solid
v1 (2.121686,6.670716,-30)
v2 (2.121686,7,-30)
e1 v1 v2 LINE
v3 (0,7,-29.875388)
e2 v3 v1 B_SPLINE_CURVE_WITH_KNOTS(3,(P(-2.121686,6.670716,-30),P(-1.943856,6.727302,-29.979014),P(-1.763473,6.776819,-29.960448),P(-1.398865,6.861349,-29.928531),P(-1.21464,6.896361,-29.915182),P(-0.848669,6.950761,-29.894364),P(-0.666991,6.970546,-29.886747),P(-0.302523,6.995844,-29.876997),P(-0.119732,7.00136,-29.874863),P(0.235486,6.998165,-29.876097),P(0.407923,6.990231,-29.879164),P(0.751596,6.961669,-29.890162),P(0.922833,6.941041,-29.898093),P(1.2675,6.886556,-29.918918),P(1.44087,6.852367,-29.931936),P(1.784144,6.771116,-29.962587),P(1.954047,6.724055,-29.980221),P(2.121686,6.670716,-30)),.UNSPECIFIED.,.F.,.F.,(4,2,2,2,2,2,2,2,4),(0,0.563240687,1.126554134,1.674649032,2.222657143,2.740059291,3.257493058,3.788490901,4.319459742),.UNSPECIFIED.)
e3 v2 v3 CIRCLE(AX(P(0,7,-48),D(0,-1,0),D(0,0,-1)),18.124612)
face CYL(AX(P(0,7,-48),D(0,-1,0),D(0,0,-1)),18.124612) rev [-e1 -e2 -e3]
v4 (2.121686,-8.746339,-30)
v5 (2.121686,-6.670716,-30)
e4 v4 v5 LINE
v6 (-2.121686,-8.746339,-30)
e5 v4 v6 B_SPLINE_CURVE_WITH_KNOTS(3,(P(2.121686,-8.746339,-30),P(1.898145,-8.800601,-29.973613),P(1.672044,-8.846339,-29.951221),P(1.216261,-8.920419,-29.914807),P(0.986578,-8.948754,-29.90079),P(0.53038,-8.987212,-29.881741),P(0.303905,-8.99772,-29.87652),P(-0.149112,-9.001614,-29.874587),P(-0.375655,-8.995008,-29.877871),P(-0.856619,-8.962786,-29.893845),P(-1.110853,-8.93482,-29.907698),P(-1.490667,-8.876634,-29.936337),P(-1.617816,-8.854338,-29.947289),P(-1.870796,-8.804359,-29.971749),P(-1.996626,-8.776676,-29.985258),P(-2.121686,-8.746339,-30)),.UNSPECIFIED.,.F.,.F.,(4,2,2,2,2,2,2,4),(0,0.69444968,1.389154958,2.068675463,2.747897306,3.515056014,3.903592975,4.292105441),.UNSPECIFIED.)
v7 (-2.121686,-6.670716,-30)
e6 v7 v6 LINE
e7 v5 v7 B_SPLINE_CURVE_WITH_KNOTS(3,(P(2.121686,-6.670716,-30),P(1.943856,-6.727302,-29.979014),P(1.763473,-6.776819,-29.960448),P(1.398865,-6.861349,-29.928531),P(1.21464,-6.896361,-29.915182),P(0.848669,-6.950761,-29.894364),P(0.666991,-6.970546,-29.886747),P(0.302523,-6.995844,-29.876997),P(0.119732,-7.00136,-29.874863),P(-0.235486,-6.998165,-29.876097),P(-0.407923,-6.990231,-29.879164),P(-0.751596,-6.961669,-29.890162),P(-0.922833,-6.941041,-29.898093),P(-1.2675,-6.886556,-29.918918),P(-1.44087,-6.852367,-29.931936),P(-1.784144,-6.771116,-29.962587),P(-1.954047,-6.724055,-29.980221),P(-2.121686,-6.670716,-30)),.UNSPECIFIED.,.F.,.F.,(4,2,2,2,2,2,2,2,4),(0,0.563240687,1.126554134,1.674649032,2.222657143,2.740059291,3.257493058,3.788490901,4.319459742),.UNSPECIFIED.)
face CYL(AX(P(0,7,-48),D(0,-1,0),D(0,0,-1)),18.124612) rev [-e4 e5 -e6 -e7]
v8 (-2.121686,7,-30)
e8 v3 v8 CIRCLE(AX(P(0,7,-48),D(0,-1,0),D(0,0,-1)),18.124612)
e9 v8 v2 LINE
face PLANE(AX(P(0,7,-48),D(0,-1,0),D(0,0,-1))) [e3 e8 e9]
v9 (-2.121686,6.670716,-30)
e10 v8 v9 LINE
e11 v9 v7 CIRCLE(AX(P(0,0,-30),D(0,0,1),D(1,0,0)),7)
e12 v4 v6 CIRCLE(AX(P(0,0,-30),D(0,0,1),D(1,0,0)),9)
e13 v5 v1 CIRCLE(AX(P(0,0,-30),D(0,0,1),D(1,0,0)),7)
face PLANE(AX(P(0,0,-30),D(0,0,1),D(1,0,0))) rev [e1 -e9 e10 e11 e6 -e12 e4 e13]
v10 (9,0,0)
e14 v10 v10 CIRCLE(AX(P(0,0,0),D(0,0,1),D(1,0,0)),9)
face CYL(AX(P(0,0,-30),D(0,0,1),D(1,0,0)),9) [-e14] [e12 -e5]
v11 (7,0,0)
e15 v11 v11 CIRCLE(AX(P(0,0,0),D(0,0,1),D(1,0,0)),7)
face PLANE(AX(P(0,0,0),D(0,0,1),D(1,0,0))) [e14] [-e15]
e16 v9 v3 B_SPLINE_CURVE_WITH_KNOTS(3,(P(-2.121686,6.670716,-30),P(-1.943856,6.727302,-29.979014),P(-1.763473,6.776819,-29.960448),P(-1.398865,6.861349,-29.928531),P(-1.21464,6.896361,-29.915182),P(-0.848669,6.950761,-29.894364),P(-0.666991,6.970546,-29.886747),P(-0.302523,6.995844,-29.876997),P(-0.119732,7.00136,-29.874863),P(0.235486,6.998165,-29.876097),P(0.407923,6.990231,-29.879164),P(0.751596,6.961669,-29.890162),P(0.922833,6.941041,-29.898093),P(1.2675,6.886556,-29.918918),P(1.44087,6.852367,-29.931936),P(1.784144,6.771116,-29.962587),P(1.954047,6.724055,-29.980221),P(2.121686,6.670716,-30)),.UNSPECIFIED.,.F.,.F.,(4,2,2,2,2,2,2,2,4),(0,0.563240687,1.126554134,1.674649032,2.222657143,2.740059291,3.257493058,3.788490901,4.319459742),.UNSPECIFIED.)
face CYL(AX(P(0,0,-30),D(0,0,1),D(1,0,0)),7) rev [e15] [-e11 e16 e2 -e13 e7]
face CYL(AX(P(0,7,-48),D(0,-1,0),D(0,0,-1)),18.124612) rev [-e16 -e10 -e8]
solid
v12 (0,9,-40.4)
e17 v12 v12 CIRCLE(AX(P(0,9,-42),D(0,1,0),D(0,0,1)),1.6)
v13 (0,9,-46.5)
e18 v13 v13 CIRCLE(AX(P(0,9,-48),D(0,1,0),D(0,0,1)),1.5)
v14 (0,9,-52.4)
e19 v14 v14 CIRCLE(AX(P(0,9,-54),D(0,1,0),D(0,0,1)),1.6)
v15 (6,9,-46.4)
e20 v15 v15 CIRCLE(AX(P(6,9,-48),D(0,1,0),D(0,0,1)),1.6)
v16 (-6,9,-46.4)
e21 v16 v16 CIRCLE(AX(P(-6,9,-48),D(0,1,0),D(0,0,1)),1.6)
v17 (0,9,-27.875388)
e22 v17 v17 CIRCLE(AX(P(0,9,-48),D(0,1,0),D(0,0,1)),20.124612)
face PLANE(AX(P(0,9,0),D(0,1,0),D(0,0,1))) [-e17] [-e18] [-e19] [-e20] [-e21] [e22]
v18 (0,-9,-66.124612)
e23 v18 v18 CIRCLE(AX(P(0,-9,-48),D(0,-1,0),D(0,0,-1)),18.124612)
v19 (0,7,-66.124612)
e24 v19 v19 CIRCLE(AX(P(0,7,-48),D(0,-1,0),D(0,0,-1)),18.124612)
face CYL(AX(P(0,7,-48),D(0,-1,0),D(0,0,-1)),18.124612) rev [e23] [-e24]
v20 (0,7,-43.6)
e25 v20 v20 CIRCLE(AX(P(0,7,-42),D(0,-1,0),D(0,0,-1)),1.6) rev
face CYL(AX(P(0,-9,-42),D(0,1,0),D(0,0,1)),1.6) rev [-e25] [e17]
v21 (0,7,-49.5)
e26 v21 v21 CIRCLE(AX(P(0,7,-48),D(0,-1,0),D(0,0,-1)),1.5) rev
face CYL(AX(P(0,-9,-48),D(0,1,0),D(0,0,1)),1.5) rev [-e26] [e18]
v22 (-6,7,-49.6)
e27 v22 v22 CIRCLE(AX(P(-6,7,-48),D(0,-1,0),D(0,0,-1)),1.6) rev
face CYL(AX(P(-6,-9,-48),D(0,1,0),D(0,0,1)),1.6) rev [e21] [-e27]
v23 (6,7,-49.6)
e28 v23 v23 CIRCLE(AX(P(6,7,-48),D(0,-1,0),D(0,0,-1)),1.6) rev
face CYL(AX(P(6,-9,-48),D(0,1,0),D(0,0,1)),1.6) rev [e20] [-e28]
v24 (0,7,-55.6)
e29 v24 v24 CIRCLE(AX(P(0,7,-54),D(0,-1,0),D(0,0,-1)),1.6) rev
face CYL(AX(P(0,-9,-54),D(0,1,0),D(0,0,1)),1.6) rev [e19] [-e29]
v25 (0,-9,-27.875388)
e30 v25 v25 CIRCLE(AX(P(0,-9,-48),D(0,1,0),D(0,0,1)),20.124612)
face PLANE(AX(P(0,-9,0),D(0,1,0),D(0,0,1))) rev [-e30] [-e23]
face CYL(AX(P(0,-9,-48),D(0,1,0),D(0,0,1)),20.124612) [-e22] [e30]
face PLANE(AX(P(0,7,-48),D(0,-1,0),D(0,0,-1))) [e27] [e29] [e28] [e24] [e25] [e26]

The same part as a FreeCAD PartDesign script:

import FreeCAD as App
import Part
import Sketcher
Q = App.Units.Quantity

doc = App.newDocument("Part")
body = doc.addObject("PartDesign::Body", "Body")

# Sketch on XY plane
sketch1 = body.newObject("Sketcher::SketchObject", "Sketch")
sketch1.AttachmentSupport = (doc.getObject("XY_Plane"), [""])
sketch1.MapMode = "FlatFace"
sketch1.addGeometry([
    Part.Circle(App.Vector(0, 0, 0), App.Vector(0, 0, 1), 9),
    Part.Circle(App.Vector(0, 0, 0), App.Vector(0, 0, 1), 7),
], False)
sketch1.addConstraint([
    Sketcher.Constraint("Coincident", 0, 3, -1, 1),
    Sketcher.Constraint("Coincident", 1, 3, -1, 1),
    Sketcher.Constraint("Diameter", 0, Q("18 mm")),
    Sketcher.Constraint("Diameter", 1, Q("14 mm")),
])
pad1 = body.newObject("PartDesign::Pad", "Pad")
pad1.Profile = sketch1
pad1.Length = 30
pad1.Reversed = True
body2 = doc.addObject("PartDesign::Body", "Body001")

# Sketch on XZ plane
sketch2 = body2.newObject("Sketcher::SketchObject", "Sketch001")
sketch2.AttachmentSupport = (doc.getObject("XZ_Plane001"), [""])
sketch2.MapMode = "FlatFace"
sketch2.AttachmentOffset = App.Placement(App.Vector(0, 0, -9), App.Rotation())
sketch2.addGeometry([
    Part.Circle(App.Vector(0, -48, 0), App.Vector(0, 0, 1), 20.124612),  # 0
    Part.Circle(App.Vector(-6, -48, 0), App.Vector(0, 0, 1), 1.6),  # 1
    Part.Circle(App.Vector(0, -54, 0), App.Vector(0, 0, 1), 1.6),  # 2
    Part.Circle(App.Vector(0, -48, 0), App.Vector(0, 0, 1), 1.5),  # 3
    Part.Circle(App.Vector(6, -48, 0), App.Vector(0, 0, 1), 1.6),  # 4
    Part.Circle(App.Vector(0, -42, 0), App.Vector(0, 0, 1), 1.6),  # 5
], False)
sketch2.addConstraint([
    Sketcher.Constraint("Coincident", 3, 3, 0, 3),
    Sketcher.Constraint("Equal", 1, 2),
    Sketcher.Constraint("Equal", 2, 4),
    Sketcher.Constraint("Equal", 4, 5),
    Sketcher.Constraint("Symmetric", 1, 3, 4, 3, -2),
    Sketcher.Constraint("PointOnObject", 0, 3, -2),
    Sketcher.Constraint("PointOnObject", 2, 3, -2),
    Sketcher.Constraint("PointOnObject", 5, 3, -2),
    Sketcher.Constraint("Horizontal", 0, 3, 1, 3),
    Sketcher.Constraint("Diameter", 3, Q("3 mm")),
    Sketcher.Constraint("Diameter", 1, Q("3.2 mm")),
    Sketcher.Constraint("DistanceY", 0, 3, -1, 1, Q("48 mm")),
    Sketcher.Constraint("DistanceX", 1, 3, -1, 1, Q("6 mm")),
    Sketcher.Constraint("DistanceY", 2, 3, -1, 1, Q("54 mm")),
    Sketcher.Constraint("DistanceY", 5, 3, -1, 1, Q("42 mm")),
    Sketcher.Constraint("Diameter", 0, Q("40.249224 mm")),
])
pad2 = body2.newObject("PartDesign::Pad", "Pad001")
pad2.Profile = sketch2
pad2.Length = 18
body3 = doc.addObject("PartDesign::Body", "Body002")

# Sketch on XZ plane
sketch3 = body3.newObject("Sketcher::SketchObject", "Sketch002")
sketch3.AttachmentSupport = (doc.getObject("XZ_Plane002"), [""])
sketch3.MapMode = "FlatFace"
sketch3.AttachmentOffset = App.Placement(App.Vector(0, 0, 9), App.Rotation())
sketch3.addGeometry(Part.Circle(App.Vector(0, -48, 0), App.Vector(0, 0, 1), 18.124612), False)
sketch3.addConstraint([
    Sketcher.Constraint("PointOnObject", 0, 3, -2),
    Sketcher.Constraint("DistanceY", 0, 3, -1, 1, Q("48 mm")),
    Sketcher.Constraint("Diameter", 0, Q("36.249224 mm")),
])
pad3 = body3.newObject("PartDesign::Pad", "Pad002")
pad3.Profile = sketch3
pad3.Length = 16
pad3.Reversed = True
doc.recompute()

body4 = doc.addObject("PartDesign::Body", "Body003")
body4.BaseFeature = body3
boolean = body.newObject("PartDesign::Boolean", "Boolean")
boolean.Type = "Cut"
boolean.addObjects([body4])
doc.recompute()

boolean2 = body2.newObject("PartDesign::Boolean", "Boolean001")
boolean2.Type = "Cut"
boolean2.addObjects([body3])

doc.recompute()
